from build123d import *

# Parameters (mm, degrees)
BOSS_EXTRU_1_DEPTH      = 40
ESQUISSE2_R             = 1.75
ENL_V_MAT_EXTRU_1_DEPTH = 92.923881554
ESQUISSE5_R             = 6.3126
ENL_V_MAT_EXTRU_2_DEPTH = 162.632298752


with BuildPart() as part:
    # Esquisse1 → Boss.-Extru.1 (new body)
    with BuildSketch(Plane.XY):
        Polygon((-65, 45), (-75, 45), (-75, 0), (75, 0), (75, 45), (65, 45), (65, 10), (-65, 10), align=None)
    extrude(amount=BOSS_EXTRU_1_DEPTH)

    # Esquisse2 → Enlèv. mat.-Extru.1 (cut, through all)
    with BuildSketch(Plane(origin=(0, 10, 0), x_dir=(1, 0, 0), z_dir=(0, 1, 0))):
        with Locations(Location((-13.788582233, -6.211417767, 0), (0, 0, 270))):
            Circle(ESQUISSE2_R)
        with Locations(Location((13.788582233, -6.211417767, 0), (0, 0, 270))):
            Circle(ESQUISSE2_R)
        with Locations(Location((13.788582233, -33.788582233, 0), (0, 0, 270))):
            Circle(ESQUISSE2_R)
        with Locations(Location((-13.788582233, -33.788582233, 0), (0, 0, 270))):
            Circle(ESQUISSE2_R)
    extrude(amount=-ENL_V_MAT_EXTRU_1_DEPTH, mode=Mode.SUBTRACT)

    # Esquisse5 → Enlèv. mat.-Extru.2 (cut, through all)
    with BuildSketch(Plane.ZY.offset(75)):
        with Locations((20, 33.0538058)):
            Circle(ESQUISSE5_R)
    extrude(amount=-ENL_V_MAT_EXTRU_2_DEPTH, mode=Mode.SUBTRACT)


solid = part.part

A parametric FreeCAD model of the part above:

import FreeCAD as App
import Part
import Sketcher

V = App.Vector

doc = App.newDocument("Part")
body = doc.addObject("PartDesign::Body", "Body")

sketch1 = body.newObject("Sketcher::SketchObject", "Sketch")
sketch1.AttachmentSupport = (doc.getObject("XY_Plane"), [""])
sketch1.MapMode = "FlatFace"
sketch1.addGeometry([
    Part.LineSegment(V(-65, 45, 0), V(-75, 45, 0)),
    Part.LineSegment(V(-75, 45, 0), V(-75, 0, 0)),
    Part.LineSegment(V(-75, 0, 0), V(75, 0, 0)),
    Part.LineSegment(V(75, 0, 0), V(75, 45, 0)),
    Part.LineSegment(V(75, 45, 0), V(65, 45, 0)),
    Part.LineSegment(V(65, 45, 0), V(65, 10, 0)),
    Part.LineSegment(V(65, 10, 0), V(-65, 10, 0)),
    Part.LineSegment(V(-65, 10, 0), V(-65, 45, 0)),
], False)
sketch1.addConstraint([
    Sketcher.Constraint("Coincident", 0, 2, 1, 1),
    Sketcher.Constraint("Coincident", 1, 2, 2, 1),
    Sketcher.Constraint("Coincident", 2, 2, 3, 1),
    Sketcher.Constraint("Coincident", 3, 2, 4, 1),
    Sketcher.Constraint("Coincident", 4, 2, 5, 1),
    Sketcher.Constraint("Coincident", 5, 2, 6, 1),
    Sketcher.Constraint("Coincident", 6, 2, 7, 1),
    Sketcher.Constraint("Coincident", 7, 2, 0, 1),
    Sketcher.Constraint("Horizontal", 0),
    Sketcher.Constraint("Vertical", 1),
    Sketcher.Constraint("Horizontal", 2),
    Sketcher.Constraint("Vertical", 3),
    Sketcher.Constraint("Horizontal", 4),
    Sketcher.Constraint("Vertical", 5),
    Sketcher.Constraint("Horizontal", 6),
    Sketcher.Constraint("Vertical", 7),
    Sketcher.Constraint("Symmetric", 1, 2, 2, 2, -1, 1),
    Sketcher.Constraint("Symmetric", 4, 2, 7, 2, -2),
    Sketcher.Constraint("DistanceX", 0, 2, 0, 1, 10.0),
    Sketcher.Constraint("DistanceX", 2, 1, 2, 2, 150.0),
    Sketcher.Constraint("DistanceY", 1, 2, 1, 1, 45.0),
    Sketcher.Constraint("DistanceY", 5, 2, 5, 1, 35.0),
])
pad1 = body.newObject("PartDesign::Pad", "Pad")
pad1.Profile = sketch1
pad1.Length = 40

sketch2 = body.newObject("Sketcher::SketchObject", "Sketch001")
sketch2.AttachmentSupport = (doc.getObject("XZ_Plane"), [""])
sketch2.MapMode = "FlatFace"
sketch2.AttachmentOffset = App.Placement(V(0, 0, -10), App.Rotation())
sketch2.addGeometry([
    Part.Circle(V(-13.788582, 6.211418, 0), V(0, 0, 1), 1.75),
    Part.Circle(V(13.788582, 6.211418, 0), V(0, 0, 1), 1.75),
    Part.Circle(V(13.788582, 33.788582, 0), V(0, 0, 1), 1.75),
    Part.Circle(V(-13.788582, 33.788582, 0), V(0, 0, 1), 1.75),
], False)
sketch2.addConstraint([
    Sketcher.Constraint("Equal", 0, 1),
    Sketcher.Constraint("Equal", 1, 2),
    Sketcher.Constraint("Equal", 2, 3),
    Sketcher.Constraint("Symmetric", 0, 3, 1, 3, -2),
    Sketcher.Constraint("Symmetric", 2, 3, 3, 3, -2),
    Sketcher.Constraint("Vertical", 1, 3, 2, 3),
    Sketcher.Constraint("Diameter", 0, 3.5),
    Sketcher.Constraint("DistanceX", 0, 3, -1, 1, 13.788582),
    Sketcher.Constraint("DistanceY", -1, 1, 0, 3, 6.211418),
    Sketcher.Constraint("DistanceY", -1, 1, 2, 3, 33.788582),
])
pocket1 = body.newObject("PartDesign::Pocket", "Pocket")
pocket1.Profile = sketch2
pocket1.Type = "ThroughAll"
pocket1.Reversed = True

sketch3 = body.newObject("Sketcher::SketchObject", "Sketch002")
sketch3.AttachmentSupport = (doc.getObject("YZ_Plane"), [""])
sketch3.MapMode = "FlatFace"
sketch3.AttachmentOffset = App.Placement(V(0, 0, -75), App.Rotation())
sketch3.addGeometry(Part.Circle(V(33.053806, 20, 0), V(0, 0, 1), 6.3126), False)
sketch3.addConstraint([
    Sketcher.Constraint("DistanceY", -1, 1, 0, 3, 20.0),
    Sketcher.Constraint("Diameter", 0, 12.6252),
    Sketcher.Constraint("DistanceX", -1, 1, 0, 3, 33.053806),
])
pocket2 = body.newObject("PartDesign::Pocket", "Pocket001")
pocket2.Profile = sketch3
pocket2.Type = "ThroughAll"
pocket2.Reversed = True

doc.recompute()
